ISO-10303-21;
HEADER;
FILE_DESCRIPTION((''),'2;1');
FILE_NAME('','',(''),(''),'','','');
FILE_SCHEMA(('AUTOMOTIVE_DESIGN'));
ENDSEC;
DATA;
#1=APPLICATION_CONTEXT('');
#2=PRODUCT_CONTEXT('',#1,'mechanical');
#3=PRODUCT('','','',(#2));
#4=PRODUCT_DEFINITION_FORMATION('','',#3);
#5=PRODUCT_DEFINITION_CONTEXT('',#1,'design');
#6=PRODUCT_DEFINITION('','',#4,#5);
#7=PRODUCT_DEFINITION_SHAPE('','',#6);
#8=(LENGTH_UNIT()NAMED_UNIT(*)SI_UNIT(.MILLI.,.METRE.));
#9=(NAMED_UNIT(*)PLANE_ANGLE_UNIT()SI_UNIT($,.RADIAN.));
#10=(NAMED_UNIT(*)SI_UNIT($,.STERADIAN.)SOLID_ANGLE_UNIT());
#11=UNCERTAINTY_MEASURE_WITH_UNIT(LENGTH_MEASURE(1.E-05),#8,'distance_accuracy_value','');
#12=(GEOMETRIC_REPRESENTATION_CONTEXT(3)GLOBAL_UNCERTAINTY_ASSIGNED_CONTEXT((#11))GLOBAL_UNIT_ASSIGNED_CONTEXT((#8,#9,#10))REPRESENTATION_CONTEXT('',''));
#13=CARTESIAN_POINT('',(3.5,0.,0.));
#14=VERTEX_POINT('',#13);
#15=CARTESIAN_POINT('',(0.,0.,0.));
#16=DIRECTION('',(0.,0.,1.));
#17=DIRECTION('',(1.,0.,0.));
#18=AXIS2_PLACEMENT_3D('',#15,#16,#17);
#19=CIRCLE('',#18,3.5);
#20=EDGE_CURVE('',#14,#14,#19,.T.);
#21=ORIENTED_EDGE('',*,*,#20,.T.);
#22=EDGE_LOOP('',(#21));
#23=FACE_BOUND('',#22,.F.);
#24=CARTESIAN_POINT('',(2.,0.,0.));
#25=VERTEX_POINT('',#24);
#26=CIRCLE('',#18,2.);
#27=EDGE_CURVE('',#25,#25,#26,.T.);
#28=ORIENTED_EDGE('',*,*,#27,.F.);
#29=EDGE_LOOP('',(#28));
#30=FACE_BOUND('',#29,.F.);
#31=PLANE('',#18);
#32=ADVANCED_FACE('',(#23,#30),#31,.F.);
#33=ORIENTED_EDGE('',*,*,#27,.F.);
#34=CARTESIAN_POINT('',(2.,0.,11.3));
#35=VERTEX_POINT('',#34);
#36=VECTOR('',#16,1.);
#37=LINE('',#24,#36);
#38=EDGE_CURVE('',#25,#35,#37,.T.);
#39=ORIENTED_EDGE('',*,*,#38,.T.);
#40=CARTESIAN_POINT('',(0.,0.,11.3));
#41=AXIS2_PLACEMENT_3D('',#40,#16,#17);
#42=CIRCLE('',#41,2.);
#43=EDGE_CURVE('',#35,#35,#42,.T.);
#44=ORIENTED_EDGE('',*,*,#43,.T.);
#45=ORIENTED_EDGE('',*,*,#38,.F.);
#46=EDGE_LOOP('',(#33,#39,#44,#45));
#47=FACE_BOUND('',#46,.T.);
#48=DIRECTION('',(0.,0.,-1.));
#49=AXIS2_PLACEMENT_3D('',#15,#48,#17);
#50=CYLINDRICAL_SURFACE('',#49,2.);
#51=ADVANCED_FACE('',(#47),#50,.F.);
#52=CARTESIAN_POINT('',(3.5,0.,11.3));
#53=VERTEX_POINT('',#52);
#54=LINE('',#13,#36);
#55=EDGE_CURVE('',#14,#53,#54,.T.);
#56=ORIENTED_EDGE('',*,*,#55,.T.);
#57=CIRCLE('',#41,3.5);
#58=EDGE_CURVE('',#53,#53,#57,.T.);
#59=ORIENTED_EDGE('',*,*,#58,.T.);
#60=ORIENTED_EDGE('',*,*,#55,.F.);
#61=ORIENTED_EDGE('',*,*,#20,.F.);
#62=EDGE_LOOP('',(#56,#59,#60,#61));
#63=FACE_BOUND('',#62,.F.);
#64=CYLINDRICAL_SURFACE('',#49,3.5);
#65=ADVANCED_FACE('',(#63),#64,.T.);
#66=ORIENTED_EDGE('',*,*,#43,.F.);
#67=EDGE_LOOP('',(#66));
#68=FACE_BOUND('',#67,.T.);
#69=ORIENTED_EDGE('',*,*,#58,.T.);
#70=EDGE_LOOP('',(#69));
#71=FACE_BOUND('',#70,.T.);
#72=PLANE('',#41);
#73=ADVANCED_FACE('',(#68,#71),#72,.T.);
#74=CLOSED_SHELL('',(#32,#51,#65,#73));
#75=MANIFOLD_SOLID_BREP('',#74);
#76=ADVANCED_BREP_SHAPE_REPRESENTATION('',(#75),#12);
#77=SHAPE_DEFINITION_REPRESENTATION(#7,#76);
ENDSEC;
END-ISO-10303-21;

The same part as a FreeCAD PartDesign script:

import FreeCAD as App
import Part
import Sketcher

V = App.Vector

doc = App.newDocument("Part")
body = doc.addObject("PartDesign::Body", "Body")

# Sketch on XY plane
sketch1 = doc.addObject("Sketcher::SketchObject", "Sketch")
body.addObject(sketch1)
sketch1.AttachmentSupport = (doc.XY_Plane, [""])
sketch1.MapMode = "FlatFace"
sketch1.addGeometry([
    Part.Circle(V(0, 0, 0), V(0, 0, 1), 3.5),
    Part.Circle(V(0, 0, 0), V(0, 0, 1), 2),
], False)
sketch1.addConstraint([
    Sketcher.Constraint("Coincident", 0, 3, -1, 1),
    Sketcher.Constraint("Coincident", 1, 3, -1, 1),
    Sketcher.Constraint("Diameter", 0, 7.0),
    Sketcher.Constraint("Diameter", 1, 4.0),
])
pad1 = doc.addObject("PartDesign::Pad", "Pad")
body.addObject(pad1)
pad1.Profile = sketch1
pad1.Length = 11.3

doc.recompute()
